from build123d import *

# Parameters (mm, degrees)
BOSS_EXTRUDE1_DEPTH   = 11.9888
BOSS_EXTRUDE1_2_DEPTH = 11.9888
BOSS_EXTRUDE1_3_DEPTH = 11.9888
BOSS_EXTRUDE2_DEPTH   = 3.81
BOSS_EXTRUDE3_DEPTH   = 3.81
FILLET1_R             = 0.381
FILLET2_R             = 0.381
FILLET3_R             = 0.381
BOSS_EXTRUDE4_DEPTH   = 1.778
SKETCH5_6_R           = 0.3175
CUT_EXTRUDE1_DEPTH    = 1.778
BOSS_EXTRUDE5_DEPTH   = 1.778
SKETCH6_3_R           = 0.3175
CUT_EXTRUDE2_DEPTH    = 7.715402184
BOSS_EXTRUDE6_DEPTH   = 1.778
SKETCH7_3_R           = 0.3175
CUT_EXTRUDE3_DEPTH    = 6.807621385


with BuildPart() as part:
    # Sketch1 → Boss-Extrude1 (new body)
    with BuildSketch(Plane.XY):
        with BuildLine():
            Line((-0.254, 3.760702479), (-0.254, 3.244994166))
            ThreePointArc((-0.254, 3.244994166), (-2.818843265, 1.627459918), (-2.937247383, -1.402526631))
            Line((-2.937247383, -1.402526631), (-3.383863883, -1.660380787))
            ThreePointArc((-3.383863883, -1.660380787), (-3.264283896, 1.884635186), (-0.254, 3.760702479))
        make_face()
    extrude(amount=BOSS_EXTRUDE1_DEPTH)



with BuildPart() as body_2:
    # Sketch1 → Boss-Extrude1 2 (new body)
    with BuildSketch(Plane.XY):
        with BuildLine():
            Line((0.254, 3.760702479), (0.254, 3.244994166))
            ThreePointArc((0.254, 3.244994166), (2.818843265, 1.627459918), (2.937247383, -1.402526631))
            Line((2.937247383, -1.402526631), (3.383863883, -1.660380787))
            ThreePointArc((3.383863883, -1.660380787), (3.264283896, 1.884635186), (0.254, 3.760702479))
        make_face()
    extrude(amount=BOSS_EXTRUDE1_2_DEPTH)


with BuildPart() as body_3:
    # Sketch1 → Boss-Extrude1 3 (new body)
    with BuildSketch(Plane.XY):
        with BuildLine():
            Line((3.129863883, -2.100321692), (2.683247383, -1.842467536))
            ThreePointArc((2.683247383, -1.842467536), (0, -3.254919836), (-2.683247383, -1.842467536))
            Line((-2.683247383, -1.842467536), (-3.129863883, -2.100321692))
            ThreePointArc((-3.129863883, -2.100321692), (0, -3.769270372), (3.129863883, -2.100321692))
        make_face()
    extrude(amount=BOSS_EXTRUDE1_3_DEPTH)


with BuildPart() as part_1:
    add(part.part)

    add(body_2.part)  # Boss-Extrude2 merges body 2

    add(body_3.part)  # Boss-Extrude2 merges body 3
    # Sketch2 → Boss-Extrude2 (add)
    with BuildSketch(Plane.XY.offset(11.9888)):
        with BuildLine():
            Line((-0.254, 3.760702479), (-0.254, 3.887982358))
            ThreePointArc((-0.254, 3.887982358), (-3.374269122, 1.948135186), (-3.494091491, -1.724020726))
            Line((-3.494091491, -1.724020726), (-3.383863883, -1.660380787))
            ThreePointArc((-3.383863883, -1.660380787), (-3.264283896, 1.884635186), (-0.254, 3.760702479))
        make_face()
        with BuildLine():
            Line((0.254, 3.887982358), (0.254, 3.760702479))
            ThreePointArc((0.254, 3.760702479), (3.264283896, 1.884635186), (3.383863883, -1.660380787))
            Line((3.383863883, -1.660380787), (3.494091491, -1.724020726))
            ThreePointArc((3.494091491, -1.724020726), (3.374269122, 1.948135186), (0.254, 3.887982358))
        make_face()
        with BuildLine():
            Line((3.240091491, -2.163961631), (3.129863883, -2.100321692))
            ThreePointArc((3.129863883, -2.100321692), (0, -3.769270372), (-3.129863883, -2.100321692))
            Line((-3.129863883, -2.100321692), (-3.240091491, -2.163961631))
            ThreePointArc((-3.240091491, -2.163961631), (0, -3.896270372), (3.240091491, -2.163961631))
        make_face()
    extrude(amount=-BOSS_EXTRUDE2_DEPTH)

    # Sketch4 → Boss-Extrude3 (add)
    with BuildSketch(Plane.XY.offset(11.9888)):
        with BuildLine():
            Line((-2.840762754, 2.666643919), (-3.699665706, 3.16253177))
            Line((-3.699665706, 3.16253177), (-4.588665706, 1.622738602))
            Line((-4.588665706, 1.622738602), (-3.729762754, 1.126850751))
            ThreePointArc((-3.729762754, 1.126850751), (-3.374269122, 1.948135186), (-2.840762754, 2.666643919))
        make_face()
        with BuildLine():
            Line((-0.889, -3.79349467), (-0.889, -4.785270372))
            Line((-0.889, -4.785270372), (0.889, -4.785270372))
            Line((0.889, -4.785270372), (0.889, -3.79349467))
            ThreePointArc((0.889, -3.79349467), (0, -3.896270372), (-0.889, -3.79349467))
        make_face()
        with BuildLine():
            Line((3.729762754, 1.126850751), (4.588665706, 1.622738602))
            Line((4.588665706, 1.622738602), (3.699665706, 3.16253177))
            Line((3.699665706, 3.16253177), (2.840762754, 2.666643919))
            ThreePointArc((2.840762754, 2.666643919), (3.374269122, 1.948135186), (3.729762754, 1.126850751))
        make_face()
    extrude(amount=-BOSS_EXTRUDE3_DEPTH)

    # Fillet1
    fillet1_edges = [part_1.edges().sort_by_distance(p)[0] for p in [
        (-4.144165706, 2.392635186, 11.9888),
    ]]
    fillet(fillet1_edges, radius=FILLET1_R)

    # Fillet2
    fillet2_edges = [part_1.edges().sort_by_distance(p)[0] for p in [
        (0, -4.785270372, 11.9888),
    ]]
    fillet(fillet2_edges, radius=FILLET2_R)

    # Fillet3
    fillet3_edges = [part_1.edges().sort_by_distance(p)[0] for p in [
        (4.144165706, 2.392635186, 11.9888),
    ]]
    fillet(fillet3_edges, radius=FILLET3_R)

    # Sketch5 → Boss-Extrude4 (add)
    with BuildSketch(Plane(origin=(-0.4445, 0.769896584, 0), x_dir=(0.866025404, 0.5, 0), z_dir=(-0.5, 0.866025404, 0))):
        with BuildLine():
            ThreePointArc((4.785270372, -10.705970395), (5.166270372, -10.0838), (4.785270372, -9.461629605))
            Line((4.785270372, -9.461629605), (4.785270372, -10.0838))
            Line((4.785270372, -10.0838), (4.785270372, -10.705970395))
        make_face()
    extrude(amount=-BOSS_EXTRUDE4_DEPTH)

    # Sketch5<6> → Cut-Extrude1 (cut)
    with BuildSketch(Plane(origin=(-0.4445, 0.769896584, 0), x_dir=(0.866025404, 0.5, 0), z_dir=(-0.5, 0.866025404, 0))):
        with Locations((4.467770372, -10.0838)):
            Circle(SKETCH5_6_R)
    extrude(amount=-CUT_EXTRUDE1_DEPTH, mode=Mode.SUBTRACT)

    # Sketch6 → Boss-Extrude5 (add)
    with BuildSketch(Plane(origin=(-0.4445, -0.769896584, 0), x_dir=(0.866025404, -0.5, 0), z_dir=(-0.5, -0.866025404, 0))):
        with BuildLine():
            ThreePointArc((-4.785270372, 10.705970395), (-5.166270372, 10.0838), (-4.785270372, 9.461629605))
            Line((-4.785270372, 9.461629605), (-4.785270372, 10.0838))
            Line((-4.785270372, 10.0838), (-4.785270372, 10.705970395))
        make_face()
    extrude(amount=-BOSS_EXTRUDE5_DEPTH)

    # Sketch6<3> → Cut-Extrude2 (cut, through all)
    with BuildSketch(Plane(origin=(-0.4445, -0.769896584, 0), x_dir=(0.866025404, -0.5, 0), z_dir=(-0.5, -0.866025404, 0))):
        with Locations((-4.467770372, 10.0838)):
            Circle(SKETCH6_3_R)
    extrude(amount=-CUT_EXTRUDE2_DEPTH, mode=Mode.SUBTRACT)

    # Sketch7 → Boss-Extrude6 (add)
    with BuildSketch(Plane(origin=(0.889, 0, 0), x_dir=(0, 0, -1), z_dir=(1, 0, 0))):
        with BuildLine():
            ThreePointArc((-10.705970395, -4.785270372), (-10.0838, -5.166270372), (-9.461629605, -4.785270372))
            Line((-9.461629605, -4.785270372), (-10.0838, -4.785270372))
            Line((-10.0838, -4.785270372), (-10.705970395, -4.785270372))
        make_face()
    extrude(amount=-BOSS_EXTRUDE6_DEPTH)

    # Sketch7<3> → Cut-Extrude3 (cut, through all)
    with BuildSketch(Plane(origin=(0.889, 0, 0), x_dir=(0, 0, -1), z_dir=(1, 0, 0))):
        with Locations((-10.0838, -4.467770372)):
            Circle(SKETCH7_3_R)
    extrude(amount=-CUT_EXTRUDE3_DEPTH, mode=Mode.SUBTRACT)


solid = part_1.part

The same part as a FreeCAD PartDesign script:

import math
import FreeCAD as App
import Part
import Sketcher
Q = App.Units.Quantity


def edges_at(feature, points):
    """Names of the edges that pass closest to the given points."""
    edges = feature.Shape.Edges
    near = lambda p: min(range(len(edges)), key=lambda i: edges[i].distToShape(Part.Vertex(*p))[0])
    return sorted({f"Edge{near(p) + 1}" for p in points})

doc = App.newDocument("Part")
body = doc.addObject("PartDesign::Body", "Body")

# Sketch on XY plane
sketch1 = doc.addObject("Sketcher::SketchObject", "Sketch")
body.addObject(sketch1)
sketch1.AttachmentSupport = (doc.XY_Plane, [""])
sketch1.MapMode = "FlatFace"
sketch1.addGeometry([
    Part.LineSegment(App.Vector(-0.254, 3.244994, 0), App.Vector(-0.254, 3.760702, 0)),
    Part.ArcOfCircle(Part.Circle(App.Vector(0, 0, 0), App.Vector(0, 0, 1), 3.76927), math.radians(93.863922), math.radians(206.136078)),
    Part.LineSegment(App.Vector(-3.383864, -1.660381, 0), App.Vector(-2.937247, -1.402527, 0)),
    Part.ArcOfCircle(Part.Circle(App.Vector(0, 0, 0), App.Vector(0, 0, 1), 3.25492), math.radians(94.475668), math.radians(205.524332)),
], False)
sketch1.addConstraint([
    Sketcher.Constraint("Coincident", 0, 2, 1, 1),
    Sketcher.Constraint("Coincident", 1, 2, 2, 1),
    Sketcher.Constraint("Coincident", 2, 2, 3, 2),
    Sketcher.Constraint("Coincident", 3, 1, 0, 1),
    Sketcher.Constraint("Vertical", 0),
    Sketcher.Constraint("Coincident", 1, 3, -1, 1),
    Sketcher.Constraint("Coincident", 3, 3, -1, 1),
    Sketcher.Constraint("DistanceX", 0, 2, -1, 1, Q("0.01 in")),
    Sketcher.Constraint("Radius", 1, 3.76927),
    Sketcher.Constraint("Radius", 3, 3.25492),
    Sketcher.Constraint("Distance", 2, 0.515708),
    Sketcher.Constraint("DistanceY", 1, 2, -1, 1, 1.660381),
])
pad1 = doc.addObject("PartDesign::Pad", "Pad")
body.addObject(pad1)
pad1.Profile = sketch1
pad1.Length = Q("0.472 in")
body2 = doc.addObject("PartDesign::Body", "Body001")

# Sketch on XY plane
sketch2 = doc.addObject("Sketcher::SketchObject", "Sketch001")
body2.addObject(sketch2)
sketch2.AttachmentSupport = (doc.getObject("XY_Plane001"), [""])
sketch2.MapMode = "FlatFace"
sketch2.addGeometry([
    Part.LineSegment(App.Vector(0.254, 3.760702, 0), App.Vector(0.254, 3.244994, 0)),
    Part.ArcOfCircle(Part.Circle(App.Vector(0, 0, 0), App.Vector(0, 0, 1), 3.25492), math.radians(-25.524332), math.radians(85.524332)),
    Part.LineSegment(App.Vector(2.937247, -1.402527, 0), App.Vector(3.383864, -1.660381, 0)),
    Part.ArcOfCircle(Part.Circle(App.Vector(0, 0, 0), App.Vector(0, 0, 1), 3.76927), math.radians(-26.136078), math.radians(86.136078)),
], False)
sketch2.addConstraint([
    Sketcher.Constraint("Coincident", 0, 2, 1, 2),
    Sketcher.Constraint("Coincident", 1, 1, 2, 1),
    Sketcher.Constraint("Coincident", 2, 2, 3, 1),
    Sketcher.Constraint("Coincident", 3, 2, 0, 1),
    Sketcher.Constraint("Vertical", 0),
    Sketcher.Constraint("Coincident", 1, 3, -1, 1),
    Sketcher.Constraint("Coincident", 3, 3, -1, 1),
    Sketcher.Constraint("DistanceX", -1, 1, 0, 2, Q("0.01 in")),
    Sketcher.Constraint("Radius", 1, 3.25492),
    Sketcher.Constraint("Radius", 3, 3.76927),
    Sketcher.Constraint("Distance", 2, 0.515708),
    Sketcher.Constraint("DistanceY", 2, 2, -1, 1, 1.660381),
])
pad2 = doc.addObject("PartDesign::Pad", "Pad001")
body2.addObject(pad2)
pad2.Profile = sketch2
pad2.Length = Q("0.472 in")
body3 = doc.addObject("PartDesign::Body", "Body002")

# Sketch on XY plane
sketch3 = doc.addObject("Sketcher::SketchObject", "Sketch002")
body3.addObject(sketch3)
sketch3.AttachmentSupport = (doc.getObject("XY_Plane002"), [""])
sketch3.MapMode = "FlatFace"
sketch3.addGeometry([
    Part.LineSegment(App.Vector(3.129864, -2.100322, 0), App.Vector(2.683247, -1.842468, 0)),
    Part.ArcOfCircle(Part.Circle(App.Vector(0, 0, 0), App.Vector(0, 0, 1), 3.25492), math.radians(-145.524332), math.radians(-34.475668)),
    Part.LineSegment(App.Vector(-2.683247, -1.842468, 0), App.Vector(-3.129864, -2.100322, 0)),
    Part.ArcOfCircle(Part.Circle(App.Vector(0, 0, 0), App.Vector(0, 0, 1), 3.76927), math.radians(-146.136078), math.radians(-33.863922)),
], False)
sketch3.addConstraint([
    Sketcher.Constraint("Coincident", 0, 2, 1, 2),
    Sketcher.Constraint("Coincident", 1, 1, 2, 1),
    Sketcher.Constraint("Coincident", 2, 2, 3, 1),
    Sketcher.Constraint("Coincident", 3, 2, 0, 1),
    Sketcher.Constraint("Coincident", 1, 3, -1, 1),
    Sketcher.Constraint("Coincident", 3, 3, -1, 1),
    Sketcher.Constraint("Radius", 1, 3.25492),
    Sketcher.Constraint("Radius", 3, 3.76927),
    Sketcher.Constraint("Distance", 0, 0.515708),
    Sketcher.Constraint("Distance", 2, 0.515708),
    Sketcher.Constraint("DistanceY", 2, 2, -1, 1, 2.100322),
    Sketcher.Constraint("DistanceY", 3, 2, -1, 1, 2.100322),
])
pad3 = doc.addObject("PartDesign::Pad", "Pad002")
body3.addObject(pad3)
pad3.Profile = sketch3
pad3.Length = Q("0.472 in")
body.AllowCompound = True
doc.recompute()

boolean = doc.addObject("PartDesign::Boolean", "Boolean")
body.addObject(boolean)
boolean.Type = "Fuse"
boolean.addObjects([body2])
doc.recompute()

boolean2 = doc.addObject("PartDesign::Boolean", "Boolean001")
body.addObject(boolean2)
boolean2.Type = "Fuse"
boolean2.addObjects([body3])

# Sketch on XY plane
sketch4 = doc.addObject("Sketcher::SketchObject", "Sketch003")
body.addObject(sketch4)
sketch4.AttachmentSupport = (doc.XY_Plane, [""])
sketch4.MapMode = "FlatFace"
sketch4.AttachmentOffset = App.Placement(App.Vector(0, 0, 0.472 * 25.4), App.Rotation())
sketch4.addGeometry([
    Part.LineSegment(App.Vector(-0.254, 3.760702, 0), App.Vector(-0.254, 3.887982, 0)),  # 0
    Part.ArcOfCircle(Part.Circle(App.Vector(0, 0, 0), App.Vector(0, 0, 1), 3.89627), math.radians(93.737794), math.radians(206.262206)),  # 1
    Part.LineSegment(App.Vector(-3.494091, -1.724021, 0), App.Vector(-3.383864, -1.660381, 0)),  # 2
    Part.ArcOfCircle(Part.Circle(App.Vector(0, 0, 0), App.Vector(0, 0, 1), 3.76927), math.radians(93.863922), math.radians(206.136078)),  # 3
    Part.LineSegment(App.Vector(0.254, 3.887982, 0), App.Vector(0.254, 3.760702, 0)),  # 4
    Part.ArcOfCircle(Part.Circle(App.Vector(0, 0, 0), App.Vector(0, 0, 1), 3.76927), math.radians(-26.136078), math.radians(86.136078)),  # 5
    Part.LineSegment(App.Vector(3.383864, -1.660381, 0), App.Vector(3.494091, -1.724021, 0)),  # 6
    Part.ArcOfCircle(Part.Circle(App.Vector(0, 0, 0), App.Vector(0, 0, 1), 3.89627), math.radians(-26.262206), math.radians(86.262206)),  # 7
    Part.LineSegment(App.Vector(3.240091, -2.163962, 0), App.Vector(3.129864, -2.100322, 0)),  # 8
    Part.ArcOfCircle(Part.Circle(App.Vector(0, 0, 0), App.Vector(0, 0, 1), 3.76927), math.radians(-146.136078), math.radians(-33.863922)),  # 9
    Part.LineSegment(App.Vector(-3.129864, -2.100322, 0), App.Vector(-3.240091, -2.163962, 0)),  # 10
    Part.ArcOfCircle(Part.Circle(App.Vector(0, 0, 0), App.Vector(0, 0, 1), 3.89627), math.radians(-146.262206), math.radians(-33.737794)),  # 11
], False)
sketch4.addConstraint([
    Sketcher.Constraint("Coincident", 0, 2, 1, 1),
    Sketcher.Constraint("Coincident", 1, 2, 2, 1),
    Sketcher.Constraint("Coincident", 2, 2, 3, 2),
    Sketcher.Constraint("Coincident", 3, 1, 0, 1),
    Sketcher.Constraint("Coincident", 4, 2, 5, 2),
    Sketcher.Constraint("Coincident", 5, 1, 6, 1),
    Sketcher.Constraint("Coincident", 6, 2, 7, 1),
    Sketcher.Constraint("Coincident", 7, 2, 4, 1),
    Sketcher.Constraint("Coincident", 8, 2, 9, 2),
    Sketcher.Constraint("Coincident", 9, 1, 10, 1),
    Sketcher.Constraint("Coincident", 10, 2, 11, 1),
    Sketcher.Constraint("Coincident", 11, 2, 8, 1),
    Sketcher.Constraint("Vertical", 0),
    Sketcher.Constraint("Vertical", 4),
    Sketcher.Constraint("Coincident", 1, 3, -1, 1),
    Sketcher.Constraint("Coincident", 3, 3, -1, 1),
    Sketcher.Constraint("Coincident", 5, 3, -1, 1),
    Sketcher.Constraint("Coincident", 7, 3, -1, 1),
    Sketcher.Constraint("Coincident", 9, 3, -1, 1),
    Sketcher.Constraint("Coincident", 11, 3, -1, 1),
    Sketcher.Constraint("Equal", 3, 5),
    Sketcher.Constraint("Equal", 1, 7),
    Sketcher.Constraint("Equal", 5, 9),
    Sketcher.Constraint("Equal", 7, 11),
    Sketcher.Constraint("Parallel", 6, 8),
    Sketcher.Constraint("Parallel", 2, 10),
    Sketcher.Constraint("Horizontal", 3, 1, 4, 2),
    Sketcher.Constraint("Horizontal", 2, 2, 5, 1),
    Sketcher.Constraint("Horizontal", 1, 2, 6, 2),
    Sketcher.Constraint("Horizontal", 8, 2, 9, 1),
    Sketcher.Constraint("Equal", 6, 8),
    Sketcher.Constraint("Angle", 2, Q("30 deg")),
    Sketcher.Constraint("DistanceX", 0, 2, -1, 1, Q("0.01 in")),
    Sketcher.Constraint("DistanceX", 8, 2, 5, 1, Q("0.01 in")),
    Sketcher.Constraint("Radius", 1, 3.89627),
    Sketcher.Constraint("Radius", 3, 3.76927),
])
pad4 = doc.addObject("PartDesign::Pad", "Pad003")
body.addObject(pad4)
pad4.Profile = sketch4
pad4.Length = Q("0.15 in")
pad4.Reversed = True

# Sketch on XY plane
sketch5 = doc.addObject("Sketcher::SketchObject", "Sketch004")
body.addObject(sketch5)
sketch5.AttachmentSupport = (doc.XY_Plane, [""])
sketch5.MapMode = "FlatFace"
sketch5.AttachmentOffset = App.Placement(App.Vector(0, 0, 0.472 * 25.4), App.Rotation())
sketch5.addGeometry([
    Part.LineSegment(App.Vector(-2.840763, 2.666644, 0), App.Vector(-3.699666, 3.162532, 0)),  # 0
    Part.LineSegment(App.Vector(-3.699666, 3.162532, 0), App.Vector(-4.588666, 1.622739, 0)),  # 1
    Part.LineSegment(App.Vector(-4.588666, 1.622739, 0), App.Vector(-3.729763, 1.126851, 0)),  # 2
    Part.ArcOfCircle(Part.Circle(App.Vector(0, 0, 0), App.Vector(0, 0, 1), 3.89627), math.radians(136.810826), math.radians(163.189174)),  # 3
    Part.LineSegment(App.Vector(-0.889, -3.793495, 0), App.Vector(-0.889, -4.78527, 0)),  # 4
    Part.LineSegment(App.Vector(-0.889, -4.78527, 0), App.Vector(0.889, -4.78527, 0)),  # 5
    Part.LineSegment(App.Vector(0.889, -4.78527, 0), App.Vector(0.889, -3.793495, 0)),  # 6
    Part.ArcOfCircle(Part.Circle(App.Vector(0, 0, 0), App.Vector(0, 0, 1), 3.89627), math.radians(-103.189175), math.radians(-76.810825)),  # 7
    Part.LineSegment(App.Vector(3.729763, 1.126851, 0), App.Vector(4.588666, 1.622739, 0)),  # 8
    Part.LineSegment(App.Vector(4.588666, 1.622739, 0), App.Vector(3.699666, 3.162532, 0)),  # 9
    Part.LineSegment(App.Vector(3.699666, 3.162532, 0), App.Vector(2.840763, 2.666644, 0)),  # 10
    Part.ArcOfCircle(Part.Circle(App.Vector(0, 0, 0), App.Vector(0, 0, 1), 3.89627), math.radians(16.810826), math.radians(43.189174)),  # 11
], False)
sketch5.addConstraint([
    Sketcher.Constraint("Coincident", 0, 2, 1, 1),
    Sketcher.Constraint("Coincident", 1, 2, 2, 1),
    Sketcher.Constraint("Coincident", 2, 2, 3, 2),
    Sketcher.Constraint("Coincident", 3, 1, 0, 1),
    Sketcher.Constraint("Coincident", 4, 2, 5, 1),
    Sketcher.Constraint("Coincident", 5, 2, 6, 1),
    Sketcher.Constraint("Coincident", 6, 2, 7, 2),
    Sketcher.Constraint("Coincident", 7, 1, 4, 1),
    Sketcher.Constraint("Coincident", 8, 2, 9, 1),
    Sketcher.Constraint("Coincident", 9, 2, 10, 1),
    Sketcher.Constraint("Coincident", 10, 2, 11, 2),
    Sketcher.Constraint("Coincident", 11, 1, 8, 1),
    Sketcher.Constraint("Vertical", 4),
    Sketcher.Constraint("Horizontal", 5),
    Sketcher.Constraint("Vertical", 6),
    Sketcher.Constraint("Coincident", 3, 3, -1, 1),
    Sketcher.Constraint("Coincident", 7, 3, -1, 1),
    Sketcher.Constraint("Coincident", 11, 3, -1, 1),
    Sketcher.Constraint("Equal", 3, 7),
    Sketcher.Constraint("Equal", 7, 11),
    Sketcher.Constraint("Symmetric", 1, 2, 8, 2, -2),
    Sketcher.Constraint("Symmetric", 0, 2, 9, 2, -2),
    Sketcher.Constraint("Perpendicular", 0, 1),
    Sketcher.Constraint("Perpendicular", 1, 2),
    Sketcher.Constraint("Perpendicular", 8, 9),
    Sketcher.Constraint("Perpendicular", 9, 10),
    Sketcher.Constraint("Horizontal", 6, 2, 7, 1),
    Sketcher.Constraint("Equal", 0, 2),
    Sketcher.Constraint("Angle", 0, Q("150 deg")),
    Sketcher.Constraint("DistanceX", 5, 1, 5, 2, Q("0.07 in")),
    Sketcher.Constraint("Distance", 1, Q("0.07 in")),
    Sketcher.Constraint("Radius", 3, 3.89627),
    Sketcher.Constraint("DistanceY", 4, 2, 4, 1, 0.991776),
    Sketcher.Constraint("DistanceY", -1, 1, 0, 2, 3.162532),
])
pad5 = doc.addObject("PartDesign::Pad", "Pad004")
body.addObject(pad5)
pad5.Profile = sketch5
pad5.Length = Q("0.15 in")
pad5.Reversed = True
doc.recompute()

fillet = doc.addObject("PartDesign::Fillet", "Fillet")
body.addObject(fillet)
fillet.Base = (pad5, edges_at(pad5, [(-4.144, 2.393, 11.989)]))
fillet.Radius = Q("0.015 in")
doc.recompute()

fillet2 = doc.addObject("PartDesign::Fillet", "Fillet001")
body.addObject(fillet2)
fillet2.Base = (fillet, edges_at(fillet, [(0, -4.785, 11.989)]))
fillet2.Radius = Q("0.015 in")
doc.recompute()

fillet3 = doc.addObject("PartDesign::Fillet", "Fillet002")
body.addObject(fillet3)
fillet3.Base = (fillet2, edges_at(fillet2, [(4.144, 2.393, 11.989)]))
fillet3.Radius = Q("0.015 in")

# Sketch on an angled plane
sketch6 = doc.addObject("Sketcher::SketchObject", "Sketch005")
body.addObject(sketch6)
sketch6.Placement = App.Placement(App.Vector(-0.4445, 0.769897, 0), App.Rotation(App.Vector(0.866025404, 0.5, 0), App.Vector(0, 0, -1), App.Vector(-0.5, 0.866025404, 0), "ZXY"))
sketch6.addGeometry([
    Part.ArcOfCircle(Part.Circle(App.Vector(4.46777, -10.0838, 0), App.Vector(0, 0, 1), 0.6985), math.radians(-62.964308), math.radians(62.964308)),
    Part.LineSegment(App.Vector(4.78527, -9.46163, 0), App.Vector(4.78527, -10.70597, 0)),
], False)
sketch6.addConstraint([
    Sketcher.Constraint("Coincident", 0, 1, 1, 2),
    Sketcher.Constraint("Coincident", 1, 1, 0, 2),
    Sketcher.Constraint("Vertical", 1),
    Sketcher.Constraint("Radius", 0, Q("0.0275 in")),
    Sketcher.Constraint("DistanceY", 0, 3, -1, 1, Q("0.397 in")),
    Sketcher.Constraint("DistanceX", 0, 3, 0, 1, Q("0.0125 in")),
    Sketcher.Constraint("DistanceX", -1, 1, 0, 3, 4.46777),
])
pad6 = doc.addObject("PartDesign::Pad", "Pad005")
body.addObject(pad6)
pad6.Profile = sketch6
pad6.Length = Q("0.07 in")
pad6.Reversed = True

# Sketch on an angled plane
sketch7 = doc.addObject("Sketcher::SketchObject", "Sketch006")
body.addObject(sketch7)
sketch7.Placement = App.Placement(App.Vector(-0.4445, 0.769897, 0), App.Rotation(App.Vector(0.866025404, 0.5, 0), App.Vector(0, 0, -1), App.Vector(-0.5, 0.866025404, 0), "ZXY"))
sketch7.addGeometry(Part.Circle(App.Vector(4.46777, -10.0838, 0), App.Vector(0, 0, 1), 0.3175), False)
sketch7.addConstraint([
    Sketcher.Constraint("Diameter", 0, Q("0.025 in")),
    Sketcher.Constraint("DistanceY", 0, 3, -1, 1, Q("0.397 in")),
    Sketcher.Constraint("DistanceX", -1, 1, 0, 3, 4.46777),
])
pocket1 = doc.addObject("PartDesign::Pocket", "Pocket")
body.addObject(pocket1)
pocket1.Profile = sketch7
pocket1.Length = Q("0.07 in")

# Sketch on an angled plane
sketch8 = doc.addObject("Sketcher::SketchObject", "Sketch007")
body.addObject(sketch8)
sketch8.Placement = App.Placement(App.Vector(-0.4445, -0.769897, 0), App.Rotation(App.Vector(0.866025404, -0.5, 0), App.Vector(0, 0, 1), App.Vector(-0.5, -0.866025404, 0), "ZXY"))
sketch8.addGeometry([
    Part.ArcOfCircle(Part.Circle(App.Vector(-4.46777, 10.0838, 0), App.Vector(0, 0, 1), 0.6985), math.radians(117.035692), math.radians(242.964308)),
    Part.LineSegment(App.Vector(-4.78527, 9.46163, 0), App.Vector(-4.78527, 10.70597, 0)),
], False)
sketch8.addConstraint([
    Sketcher.Constraint("Coincident", 0, 1, 1, 2),
    Sketcher.Constraint("Coincident", 1, 1, 0, 2),
    Sketcher.Constraint("Vertical", 1),
    Sketcher.Constraint("Radius", 0, Q("0.0275 in")),
    Sketcher.Constraint("DistanceY", -1, 1, 0, 3, Q("0.397 in")),
    Sketcher.Constraint("DistanceX", 0, 1, 0, 3, Q("0.0125 in")),
    Sketcher.Constraint("DistanceX", 0, 3, -1, 1, 4.46777),
])
pad7 = doc.addObject("PartDesign::Pad", "Pad006")
body.addObject(pad7)
pad7.Profile = sketch8
pad7.Length = Q("0.07 in")
pad7.Reversed = True

# Sketch on an angled plane
sketch9 = doc.addObject("Sketcher::SketchObject", "Sketch008")
body.addObject(sketch9)
sketch9.Placement = App.Placement(App.Vector(-0.4445, -0.769897, 0), App.Rotation(App.Vector(0.866025404, -0.5, 0), App.Vector(0, 0, 1), App.Vector(-0.5, -0.866025404, 0), "ZXY"))
sketch9.addGeometry(Part.Circle(App.Vector(-4.46777, 10.0838, 0), App.Vector(0, 0, 1), 0.3175), False)
sketch9.addConstraint([
    Sketcher.Constraint("Diameter", 0, Q("0.025 in")),
    Sketcher.Constraint("DistanceY", -1, 1, 0, 3, Q("0.397 in")),
    Sketcher.Constraint("DistanceX", 0, 3, -1, 1, 4.46777),
])
pocket2 = doc.addObject("PartDesign::Pocket", "Pocket001")
body.addObject(pocket2)
pocket2.Profile = sketch9
pocket2.Type = "ThroughAll"

# Sketch on YZ plane
sketch10 = doc.addObject("Sketcher::SketchObject", "Sketch009")
body.addObject(sketch10)
sketch10.AttachmentSupport = (doc.YZ_Plane, [""])
sketch10.MapMode = "FlatFace"
sketch10.AttachmentOffset = App.Placement(App.Vector(0, 0, 0.035 * 25.4), App.Rotation())
sketch10.addGeometry([
    Part.ArcOfCircle(Part.Circle(App.Vector(-4.46777, 10.0838, 0), App.Vector(0, 0, 1), 0.6985), math.radians(117.035692), math.radians(242.964308)),
    Part.LineSegment(App.Vector(-4.78527, 9.46163, 0), App.Vector(-4.78527, 10.70597, 0)),
], False)
sketch10.addConstraint([
    Sketcher.Constraint("Coincident", 0, 1, 1, 2),
    Sketcher.Constraint("Coincident", 1, 1, 0, 2),
    Sketcher.Constraint("Vertical", 1),
    Sketcher.Constraint("Radius", 0, Q("0.0275 in")),
    Sketcher.Constraint("DistanceY", -1, 1, 0, 3, Q("0.397 in")),
    Sketcher.Constraint("DistanceX", 0, 1, 0, 3, Q("0.0125 in")),
    Sketcher.Constraint("DistanceX", 0, 3, -1, 1, 4.46777),
])
pad8 = doc.addObject("PartDesign::Pad", "Pad007")
body.addObject(pad8)
pad8.Profile = sketch10
pad8.Length = Q("0.07 in")
pad8.Reversed = True

# Sketch on YZ plane
sketch11 = doc.addObject("Sketcher::SketchObject", "Sketch010")
body.addObject(sketch11)
sketch11.AttachmentSupport = (doc.YZ_Plane, [""])
sketch11.MapMode = "FlatFace"
sketch11.AttachmentOffset = App.Placement(App.Vector(0, 0, 0.035 * 25.4), App.Rotation())
sketch11.addGeometry(Part.Circle(App.Vector(-4.46777, 10.0838, 0), App.Vector(0, 0, 1), 0.3175), False)
sketch11.addConstraint([
    Sketcher.Constraint("Diameter", 0, Q("0.025 in")),
    Sketcher.Constraint("DistanceY", -1, 1, 0, 3, Q("0.397 in")),
    Sketcher.Constraint("DistanceX", 0, 3, -1, 1, 4.46777),
])
pocket3 = doc.addObject("PartDesign::Pocket", "Pocket002")
body.addObject(pocket3)
pocket3.Profile = sketch11
pocket3.Type = "ThroughAll"

doc.recompute()
